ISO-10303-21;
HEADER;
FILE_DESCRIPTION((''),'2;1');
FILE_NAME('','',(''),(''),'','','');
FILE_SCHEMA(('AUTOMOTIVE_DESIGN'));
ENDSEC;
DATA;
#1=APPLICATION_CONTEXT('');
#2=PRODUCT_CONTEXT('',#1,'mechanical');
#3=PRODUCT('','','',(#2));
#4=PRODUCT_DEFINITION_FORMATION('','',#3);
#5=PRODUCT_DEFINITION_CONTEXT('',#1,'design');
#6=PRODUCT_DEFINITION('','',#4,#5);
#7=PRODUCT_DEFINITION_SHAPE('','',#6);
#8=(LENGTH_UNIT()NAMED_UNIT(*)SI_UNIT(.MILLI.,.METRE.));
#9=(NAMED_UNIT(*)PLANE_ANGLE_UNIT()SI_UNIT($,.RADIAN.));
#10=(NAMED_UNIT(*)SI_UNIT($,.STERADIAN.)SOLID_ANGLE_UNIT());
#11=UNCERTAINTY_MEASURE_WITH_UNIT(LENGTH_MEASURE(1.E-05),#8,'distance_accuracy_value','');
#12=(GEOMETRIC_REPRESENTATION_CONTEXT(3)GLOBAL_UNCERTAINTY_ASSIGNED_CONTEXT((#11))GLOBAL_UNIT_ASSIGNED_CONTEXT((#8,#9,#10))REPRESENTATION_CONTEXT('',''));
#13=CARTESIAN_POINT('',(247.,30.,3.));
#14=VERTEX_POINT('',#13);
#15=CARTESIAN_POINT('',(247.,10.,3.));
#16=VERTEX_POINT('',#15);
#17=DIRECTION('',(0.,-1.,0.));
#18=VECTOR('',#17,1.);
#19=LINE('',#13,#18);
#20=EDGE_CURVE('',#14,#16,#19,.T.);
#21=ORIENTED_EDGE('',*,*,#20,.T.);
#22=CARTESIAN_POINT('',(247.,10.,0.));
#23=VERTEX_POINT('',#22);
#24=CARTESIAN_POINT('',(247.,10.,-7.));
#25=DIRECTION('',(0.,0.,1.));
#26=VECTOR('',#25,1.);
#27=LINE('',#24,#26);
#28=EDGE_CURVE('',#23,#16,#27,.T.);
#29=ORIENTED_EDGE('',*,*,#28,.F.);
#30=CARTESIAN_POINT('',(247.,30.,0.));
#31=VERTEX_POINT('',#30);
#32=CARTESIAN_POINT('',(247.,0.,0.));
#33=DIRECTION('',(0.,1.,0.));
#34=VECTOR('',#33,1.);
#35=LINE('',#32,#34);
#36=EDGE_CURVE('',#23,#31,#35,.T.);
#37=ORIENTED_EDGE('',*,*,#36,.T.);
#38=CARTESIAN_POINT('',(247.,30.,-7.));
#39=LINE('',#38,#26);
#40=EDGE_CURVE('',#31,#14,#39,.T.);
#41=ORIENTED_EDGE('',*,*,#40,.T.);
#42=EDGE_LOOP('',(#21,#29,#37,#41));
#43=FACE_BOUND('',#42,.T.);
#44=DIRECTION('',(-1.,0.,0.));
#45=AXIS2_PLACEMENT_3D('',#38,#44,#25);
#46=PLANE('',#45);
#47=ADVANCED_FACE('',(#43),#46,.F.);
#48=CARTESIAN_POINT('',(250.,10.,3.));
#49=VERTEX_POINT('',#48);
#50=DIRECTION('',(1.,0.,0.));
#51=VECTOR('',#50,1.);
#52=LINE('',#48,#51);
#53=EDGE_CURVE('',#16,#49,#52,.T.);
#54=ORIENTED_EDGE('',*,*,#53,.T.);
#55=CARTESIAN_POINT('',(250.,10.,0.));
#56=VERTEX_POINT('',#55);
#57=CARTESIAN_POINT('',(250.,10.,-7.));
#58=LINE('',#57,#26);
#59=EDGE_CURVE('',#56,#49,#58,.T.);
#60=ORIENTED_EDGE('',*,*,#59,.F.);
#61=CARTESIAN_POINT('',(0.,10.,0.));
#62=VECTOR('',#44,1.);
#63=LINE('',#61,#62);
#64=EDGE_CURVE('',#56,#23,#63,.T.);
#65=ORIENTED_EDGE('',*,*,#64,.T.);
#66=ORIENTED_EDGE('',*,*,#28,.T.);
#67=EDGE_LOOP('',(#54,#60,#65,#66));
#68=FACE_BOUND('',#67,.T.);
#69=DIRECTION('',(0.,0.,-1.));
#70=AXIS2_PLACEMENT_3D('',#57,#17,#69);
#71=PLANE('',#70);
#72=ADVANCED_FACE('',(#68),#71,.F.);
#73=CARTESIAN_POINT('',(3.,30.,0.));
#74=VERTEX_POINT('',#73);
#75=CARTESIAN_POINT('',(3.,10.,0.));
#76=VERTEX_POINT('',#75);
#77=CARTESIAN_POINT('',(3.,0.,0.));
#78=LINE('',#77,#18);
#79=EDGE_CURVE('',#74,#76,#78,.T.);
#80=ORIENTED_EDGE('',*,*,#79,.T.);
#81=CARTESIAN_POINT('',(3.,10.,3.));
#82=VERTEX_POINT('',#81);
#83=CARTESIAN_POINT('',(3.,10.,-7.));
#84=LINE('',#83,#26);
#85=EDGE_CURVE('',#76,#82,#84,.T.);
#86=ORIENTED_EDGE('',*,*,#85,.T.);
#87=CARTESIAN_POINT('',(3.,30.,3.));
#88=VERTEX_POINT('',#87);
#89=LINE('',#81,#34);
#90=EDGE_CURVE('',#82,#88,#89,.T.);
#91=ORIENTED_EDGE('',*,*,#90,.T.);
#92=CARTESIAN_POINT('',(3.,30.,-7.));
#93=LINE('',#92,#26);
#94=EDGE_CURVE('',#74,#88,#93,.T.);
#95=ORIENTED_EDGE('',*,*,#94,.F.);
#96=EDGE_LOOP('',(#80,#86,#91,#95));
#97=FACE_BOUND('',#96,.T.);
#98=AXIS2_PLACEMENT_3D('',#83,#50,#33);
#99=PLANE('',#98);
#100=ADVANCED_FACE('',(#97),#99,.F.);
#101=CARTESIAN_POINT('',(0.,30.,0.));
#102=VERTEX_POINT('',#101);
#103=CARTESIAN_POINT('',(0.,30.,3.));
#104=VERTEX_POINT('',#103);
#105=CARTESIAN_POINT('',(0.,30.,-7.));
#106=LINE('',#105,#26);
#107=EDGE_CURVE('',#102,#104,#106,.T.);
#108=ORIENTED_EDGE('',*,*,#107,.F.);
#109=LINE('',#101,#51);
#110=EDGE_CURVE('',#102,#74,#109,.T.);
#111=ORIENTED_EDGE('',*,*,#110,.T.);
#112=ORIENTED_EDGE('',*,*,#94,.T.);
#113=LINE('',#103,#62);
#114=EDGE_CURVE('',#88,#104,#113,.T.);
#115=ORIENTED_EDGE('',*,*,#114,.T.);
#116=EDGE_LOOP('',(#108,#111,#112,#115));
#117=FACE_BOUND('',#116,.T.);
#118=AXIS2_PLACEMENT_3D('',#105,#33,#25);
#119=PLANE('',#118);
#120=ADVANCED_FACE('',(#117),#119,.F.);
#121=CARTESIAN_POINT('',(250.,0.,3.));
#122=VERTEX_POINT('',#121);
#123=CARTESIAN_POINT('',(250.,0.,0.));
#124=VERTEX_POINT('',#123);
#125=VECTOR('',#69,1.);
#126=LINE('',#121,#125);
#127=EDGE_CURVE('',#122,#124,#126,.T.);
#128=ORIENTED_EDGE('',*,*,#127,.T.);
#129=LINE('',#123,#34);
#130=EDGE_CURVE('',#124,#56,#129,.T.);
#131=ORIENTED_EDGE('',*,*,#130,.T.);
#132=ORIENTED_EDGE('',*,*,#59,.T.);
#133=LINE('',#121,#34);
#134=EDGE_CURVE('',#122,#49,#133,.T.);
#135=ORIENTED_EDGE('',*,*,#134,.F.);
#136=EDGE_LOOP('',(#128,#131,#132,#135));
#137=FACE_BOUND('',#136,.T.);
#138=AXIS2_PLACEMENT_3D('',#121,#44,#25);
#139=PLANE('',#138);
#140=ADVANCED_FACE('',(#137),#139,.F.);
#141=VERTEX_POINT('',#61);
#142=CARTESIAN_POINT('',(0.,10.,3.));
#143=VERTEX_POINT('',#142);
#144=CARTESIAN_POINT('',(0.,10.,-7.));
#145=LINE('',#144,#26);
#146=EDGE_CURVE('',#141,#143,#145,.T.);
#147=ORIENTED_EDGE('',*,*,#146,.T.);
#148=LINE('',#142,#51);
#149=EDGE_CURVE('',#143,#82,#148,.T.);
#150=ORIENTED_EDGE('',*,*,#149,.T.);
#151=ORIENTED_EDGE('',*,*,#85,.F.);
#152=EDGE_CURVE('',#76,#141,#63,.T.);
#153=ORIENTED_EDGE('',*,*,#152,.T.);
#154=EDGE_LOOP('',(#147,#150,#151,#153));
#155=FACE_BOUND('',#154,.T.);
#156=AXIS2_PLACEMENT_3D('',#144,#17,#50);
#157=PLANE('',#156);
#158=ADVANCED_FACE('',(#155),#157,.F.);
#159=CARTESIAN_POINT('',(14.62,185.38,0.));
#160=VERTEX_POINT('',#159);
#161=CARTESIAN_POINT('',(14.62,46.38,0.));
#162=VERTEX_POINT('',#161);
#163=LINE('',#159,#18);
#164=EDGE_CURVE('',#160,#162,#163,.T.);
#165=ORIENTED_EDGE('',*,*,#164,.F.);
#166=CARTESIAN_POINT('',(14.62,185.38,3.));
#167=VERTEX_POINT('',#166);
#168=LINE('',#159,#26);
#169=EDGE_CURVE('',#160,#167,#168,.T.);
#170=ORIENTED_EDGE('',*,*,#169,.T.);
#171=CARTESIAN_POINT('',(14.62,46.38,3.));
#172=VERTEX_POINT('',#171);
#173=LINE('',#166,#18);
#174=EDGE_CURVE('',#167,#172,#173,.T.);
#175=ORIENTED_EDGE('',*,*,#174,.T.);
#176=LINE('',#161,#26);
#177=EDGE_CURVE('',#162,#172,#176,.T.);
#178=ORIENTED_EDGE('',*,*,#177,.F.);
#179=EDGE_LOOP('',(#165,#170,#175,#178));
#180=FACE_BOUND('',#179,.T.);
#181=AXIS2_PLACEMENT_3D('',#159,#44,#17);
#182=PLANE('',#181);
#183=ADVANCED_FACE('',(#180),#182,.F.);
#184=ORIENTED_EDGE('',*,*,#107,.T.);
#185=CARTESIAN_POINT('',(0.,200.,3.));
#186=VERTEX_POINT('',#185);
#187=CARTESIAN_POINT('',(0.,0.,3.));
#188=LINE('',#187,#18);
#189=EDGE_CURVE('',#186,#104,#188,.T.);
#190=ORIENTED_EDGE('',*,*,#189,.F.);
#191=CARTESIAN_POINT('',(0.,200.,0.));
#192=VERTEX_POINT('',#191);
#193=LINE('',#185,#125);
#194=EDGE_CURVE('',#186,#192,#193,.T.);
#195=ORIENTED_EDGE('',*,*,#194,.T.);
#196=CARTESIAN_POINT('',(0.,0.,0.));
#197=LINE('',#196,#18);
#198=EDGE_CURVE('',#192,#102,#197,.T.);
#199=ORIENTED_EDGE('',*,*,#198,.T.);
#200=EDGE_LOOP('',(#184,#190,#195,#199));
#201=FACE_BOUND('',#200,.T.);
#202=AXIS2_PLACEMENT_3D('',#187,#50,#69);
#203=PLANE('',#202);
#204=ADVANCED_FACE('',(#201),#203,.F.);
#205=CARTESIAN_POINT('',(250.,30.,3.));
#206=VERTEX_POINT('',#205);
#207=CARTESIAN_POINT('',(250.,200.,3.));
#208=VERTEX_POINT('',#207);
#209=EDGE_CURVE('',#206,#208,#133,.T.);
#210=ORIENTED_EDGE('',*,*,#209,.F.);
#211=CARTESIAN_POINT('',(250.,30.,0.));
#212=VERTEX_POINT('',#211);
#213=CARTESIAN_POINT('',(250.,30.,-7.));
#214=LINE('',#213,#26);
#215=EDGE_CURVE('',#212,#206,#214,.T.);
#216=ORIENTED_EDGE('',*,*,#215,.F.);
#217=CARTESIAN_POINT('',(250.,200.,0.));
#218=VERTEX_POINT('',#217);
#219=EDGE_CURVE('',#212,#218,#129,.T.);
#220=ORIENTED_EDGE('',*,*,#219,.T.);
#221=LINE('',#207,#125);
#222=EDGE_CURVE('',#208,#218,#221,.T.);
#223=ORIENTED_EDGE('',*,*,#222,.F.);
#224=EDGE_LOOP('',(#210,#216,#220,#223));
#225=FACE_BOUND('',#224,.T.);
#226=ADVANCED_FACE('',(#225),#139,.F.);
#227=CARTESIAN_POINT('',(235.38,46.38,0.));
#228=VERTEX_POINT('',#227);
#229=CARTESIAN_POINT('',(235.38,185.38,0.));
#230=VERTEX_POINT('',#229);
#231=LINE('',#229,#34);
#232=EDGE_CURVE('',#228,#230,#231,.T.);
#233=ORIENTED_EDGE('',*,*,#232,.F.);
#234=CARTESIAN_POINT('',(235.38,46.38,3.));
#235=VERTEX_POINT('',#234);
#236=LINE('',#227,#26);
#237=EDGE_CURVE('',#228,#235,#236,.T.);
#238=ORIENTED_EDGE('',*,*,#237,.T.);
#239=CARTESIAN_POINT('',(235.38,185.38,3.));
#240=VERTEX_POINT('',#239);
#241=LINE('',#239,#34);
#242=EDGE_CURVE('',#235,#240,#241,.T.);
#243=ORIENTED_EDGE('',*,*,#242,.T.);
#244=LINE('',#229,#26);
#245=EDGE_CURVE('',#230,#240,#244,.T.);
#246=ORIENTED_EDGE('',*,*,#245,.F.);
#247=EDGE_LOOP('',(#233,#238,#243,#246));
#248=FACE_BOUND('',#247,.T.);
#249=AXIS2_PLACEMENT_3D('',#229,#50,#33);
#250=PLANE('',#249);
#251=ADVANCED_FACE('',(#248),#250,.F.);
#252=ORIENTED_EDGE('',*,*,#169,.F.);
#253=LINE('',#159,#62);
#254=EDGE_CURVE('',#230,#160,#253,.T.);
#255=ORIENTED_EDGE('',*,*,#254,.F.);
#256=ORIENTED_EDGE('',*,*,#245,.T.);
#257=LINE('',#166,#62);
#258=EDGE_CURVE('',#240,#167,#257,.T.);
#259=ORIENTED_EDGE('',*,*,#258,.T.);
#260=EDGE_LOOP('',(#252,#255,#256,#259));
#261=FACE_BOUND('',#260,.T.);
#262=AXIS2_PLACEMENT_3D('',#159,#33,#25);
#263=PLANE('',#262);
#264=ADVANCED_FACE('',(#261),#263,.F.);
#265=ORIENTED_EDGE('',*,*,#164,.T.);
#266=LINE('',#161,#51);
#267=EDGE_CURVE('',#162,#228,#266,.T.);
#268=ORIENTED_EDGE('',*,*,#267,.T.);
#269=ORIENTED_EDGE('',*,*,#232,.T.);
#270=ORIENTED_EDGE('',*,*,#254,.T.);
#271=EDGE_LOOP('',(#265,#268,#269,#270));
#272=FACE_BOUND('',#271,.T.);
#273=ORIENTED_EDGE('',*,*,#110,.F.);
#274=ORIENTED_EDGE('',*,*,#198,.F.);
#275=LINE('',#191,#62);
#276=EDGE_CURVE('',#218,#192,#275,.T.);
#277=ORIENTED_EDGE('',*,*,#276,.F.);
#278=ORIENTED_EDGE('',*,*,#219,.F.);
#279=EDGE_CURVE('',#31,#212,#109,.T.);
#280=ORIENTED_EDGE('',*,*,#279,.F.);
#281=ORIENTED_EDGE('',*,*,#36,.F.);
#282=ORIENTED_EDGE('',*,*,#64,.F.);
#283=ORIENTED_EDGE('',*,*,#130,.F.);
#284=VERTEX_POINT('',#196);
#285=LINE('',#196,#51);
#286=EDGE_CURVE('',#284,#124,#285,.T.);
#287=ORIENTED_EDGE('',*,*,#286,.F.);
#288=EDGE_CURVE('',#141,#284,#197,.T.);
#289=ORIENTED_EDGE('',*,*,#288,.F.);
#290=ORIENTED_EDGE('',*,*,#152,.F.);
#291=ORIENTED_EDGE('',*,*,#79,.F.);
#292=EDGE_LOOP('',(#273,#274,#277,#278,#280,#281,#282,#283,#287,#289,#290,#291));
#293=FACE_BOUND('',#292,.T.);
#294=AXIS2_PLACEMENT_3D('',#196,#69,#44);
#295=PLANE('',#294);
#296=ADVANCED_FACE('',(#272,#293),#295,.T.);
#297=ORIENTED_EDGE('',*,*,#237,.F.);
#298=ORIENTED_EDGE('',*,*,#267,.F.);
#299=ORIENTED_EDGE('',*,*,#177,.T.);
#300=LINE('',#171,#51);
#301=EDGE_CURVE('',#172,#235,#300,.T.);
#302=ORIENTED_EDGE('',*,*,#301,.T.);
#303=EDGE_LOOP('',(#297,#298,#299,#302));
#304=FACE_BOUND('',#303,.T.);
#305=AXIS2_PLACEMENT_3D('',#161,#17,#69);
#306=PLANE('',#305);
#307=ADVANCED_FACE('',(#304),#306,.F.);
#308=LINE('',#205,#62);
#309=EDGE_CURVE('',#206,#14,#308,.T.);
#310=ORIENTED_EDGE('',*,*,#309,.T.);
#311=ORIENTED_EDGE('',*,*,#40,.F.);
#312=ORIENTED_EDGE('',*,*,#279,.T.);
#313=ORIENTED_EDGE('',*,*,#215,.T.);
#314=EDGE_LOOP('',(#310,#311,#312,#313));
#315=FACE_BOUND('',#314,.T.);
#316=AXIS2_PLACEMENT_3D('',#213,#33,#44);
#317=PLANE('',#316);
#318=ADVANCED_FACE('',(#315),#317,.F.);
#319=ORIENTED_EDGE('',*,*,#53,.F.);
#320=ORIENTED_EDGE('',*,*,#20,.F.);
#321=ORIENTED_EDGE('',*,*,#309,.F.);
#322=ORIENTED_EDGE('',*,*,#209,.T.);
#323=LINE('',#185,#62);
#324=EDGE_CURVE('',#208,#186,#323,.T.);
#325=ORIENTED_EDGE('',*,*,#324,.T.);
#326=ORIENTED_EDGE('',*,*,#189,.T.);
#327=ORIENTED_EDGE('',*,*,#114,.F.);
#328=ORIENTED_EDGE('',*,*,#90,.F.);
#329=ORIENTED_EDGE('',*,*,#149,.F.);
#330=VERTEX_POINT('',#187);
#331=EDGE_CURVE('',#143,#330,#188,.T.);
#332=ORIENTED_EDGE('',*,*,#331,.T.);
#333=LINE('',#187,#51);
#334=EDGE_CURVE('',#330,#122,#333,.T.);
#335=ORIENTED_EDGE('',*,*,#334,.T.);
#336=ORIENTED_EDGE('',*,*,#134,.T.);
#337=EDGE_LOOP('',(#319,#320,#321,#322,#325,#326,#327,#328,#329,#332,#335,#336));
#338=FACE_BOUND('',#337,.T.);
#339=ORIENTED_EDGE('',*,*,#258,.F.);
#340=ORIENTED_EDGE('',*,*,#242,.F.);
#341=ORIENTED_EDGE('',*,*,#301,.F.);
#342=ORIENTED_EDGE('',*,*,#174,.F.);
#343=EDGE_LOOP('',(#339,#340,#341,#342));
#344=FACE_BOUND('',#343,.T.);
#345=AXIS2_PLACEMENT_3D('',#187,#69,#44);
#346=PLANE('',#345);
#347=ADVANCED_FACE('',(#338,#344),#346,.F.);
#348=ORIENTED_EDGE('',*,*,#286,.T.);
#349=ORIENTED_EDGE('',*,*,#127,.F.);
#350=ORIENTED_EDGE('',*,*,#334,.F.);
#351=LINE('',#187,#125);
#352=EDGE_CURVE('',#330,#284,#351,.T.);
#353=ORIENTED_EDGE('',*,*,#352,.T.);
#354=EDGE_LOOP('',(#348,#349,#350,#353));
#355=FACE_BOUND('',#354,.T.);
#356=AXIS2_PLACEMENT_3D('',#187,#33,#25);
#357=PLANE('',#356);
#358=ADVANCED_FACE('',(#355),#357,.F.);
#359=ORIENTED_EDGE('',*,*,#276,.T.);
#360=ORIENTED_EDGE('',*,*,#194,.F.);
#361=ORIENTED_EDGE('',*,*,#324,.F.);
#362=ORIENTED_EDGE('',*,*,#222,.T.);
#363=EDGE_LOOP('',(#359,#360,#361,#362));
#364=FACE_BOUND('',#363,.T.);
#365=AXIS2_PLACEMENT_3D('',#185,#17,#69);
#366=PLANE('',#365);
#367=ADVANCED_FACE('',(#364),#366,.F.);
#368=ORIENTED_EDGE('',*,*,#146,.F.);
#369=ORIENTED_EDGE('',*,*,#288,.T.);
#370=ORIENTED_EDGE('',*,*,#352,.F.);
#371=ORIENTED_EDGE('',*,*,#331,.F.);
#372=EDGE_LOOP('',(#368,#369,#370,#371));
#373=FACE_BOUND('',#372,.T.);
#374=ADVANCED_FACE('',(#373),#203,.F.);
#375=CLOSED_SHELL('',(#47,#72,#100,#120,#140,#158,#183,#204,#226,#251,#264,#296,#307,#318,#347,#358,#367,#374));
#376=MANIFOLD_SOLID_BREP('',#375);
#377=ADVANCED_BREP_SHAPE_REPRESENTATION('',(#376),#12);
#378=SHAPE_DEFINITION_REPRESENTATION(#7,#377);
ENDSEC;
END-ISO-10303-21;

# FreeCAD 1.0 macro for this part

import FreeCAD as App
import Part
import Sketcher
Q = App.Units.Quantity

doc = App.newDocument("Part")
body = doc.addObject("PartDesign::Body", "Body")

# Sketch on XY plane
sketch1 = body.newObject("Sketcher::SketchObject", "Sketch")
sketch1.AttachmentSupport = (doc.getObject("XY_Plane"), [""])
sketch1.MapMode = "FlatFace"
sketch1.addGeometry([
    Part.LineSegment(App.Vector(0, 200, 0), App.Vector(0, 0, 0)),
    Part.LineSegment(App.Vector(0, 0, 0), App.Vector(250, 0, 0)),
    Part.LineSegment(App.Vector(250, 0, 0), App.Vector(250, 200, 0)),
    Part.LineSegment(App.Vector(250, 200, 0), App.Vector(0, 200, 0)),
], False)
sketch1.addConstraint([
    Sketcher.Constraint("Coincident", 0, 2, 1, 1),
    Sketcher.Constraint("Coincident", 1, 2, 2, 1),
    Sketcher.Constraint("Coincident", 2, 2, 3, 1),
    Sketcher.Constraint("Coincident", 3, 2, 0, 1),
    Sketcher.Constraint("Vertical", 0),
    Sketcher.Constraint("Horizontal", 1),
    Sketcher.Constraint("Vertical", 2),
    Sketcher.Constraint("Horizontal", 3),
    Sketcher.Constraint("Coincident", 0, 2, -1, 1),
    Sketcher.Constraint("DistanceX", 1, 1, 1, 2, Q("250 mm")),
    Sketcher.Constraint("DistanceY", 0, 2, 0, 1, Q("200 mm")),
])
pad1 = body.newObject("PartDesign::Pad", "Pad")
pad1.Profile = sketch1
pad1.Length = 3

# Sketch on XY plane
sketch2 = body.newObject("Sketcher::SketchObject", "Sketch001")
sketch2.AttachmentSupport = (doc.getObject("XY_Plane"), [""])
sketch2.MapMode = "FlatFace"
sketch2.AttachmentOffset = App.Placement(App.Vector(0, 0, 3), App.Rotation())
sketch2.addGeometry([
    Part.LineSegment(App.Vector(14.62, 185.38, 0), App.Vector(14.62, 46.38, 0)),
    Part.LineSegment(App.Vector(14.62, 46.38, 0), App.Vector(235.38, 46.38, 0)),
    Part.LineSegment(App.Vector(235.38, 46.38, 0), App.Vector(235.38, 185.38, 0)),
    Part.LineSegment(App.Vector(235.38, 185.38, 0), App.Vector(14.62, 185.38, 0)),
], False)
sketch2.addConstraint([
    Sketcher.Constraint("Coincident", 0, 2, 1, 1),
    Sketcher.Constraint("Coincident", 1, 2, 2, 1),
    Sketcher.Constraint("Coincident", 2, 2, 3, 1),
    Sketcher.Constraint("Coincident", 3, 2, 0, 1),
    Sketcher.Constraint("Vertical", 0),
    Sketcher.Constraint("Horizontal", 1),
    Sketcher.Constraint("Vertical", 2),
    Sketcher.Constraint("Horizontal", 3),
    Sketcher.Constraint("DistanceY", 0, 2, 0, 1, Q("139 mm")),
    Sketcher.Constraint("DistanceX", 1, 1, 1, 2, Q("220.76 mm")),
    Sketcher.Constraint("DistanceX", -1, 1, 0, 2, Q("14.62 mm")),
    Sketcher.Constraint("DistanceY", -1, 1, 0, 2, Q("46.38 mm")),
])
pocket1 = body.newObject("PartDesign::Pocket", "Pocket")
pocket1.Profile = sketch2
pocket1.Type = "ThroughAll"

# Sketch on XY plane
sketch3 = body.newObject("Sketcher::SketchObject", "Sketch002")
sketch3.AttachmentSupport = (doc.getObject("XY_Plane"), [""])
sketch3.MapMode = "FlatFace"
sketch3.AttachmentOffset = App.Placement(App.Vector(0, 0, 3), App.Rotation())
sketch3.addGeometry([
    Part.LineSegment(App.Vector(0, 30, 0), App.Vector(0, 10, 0)),  # 0
    Part.LineSegment(App.Vector(0, 10, 0), App.Vector(3, 10, 0)),  # 1
    Part.LineSegment(App.Vector(3, 10, 0), App.Vector(3, 30, 0)),  # 2
    Part.LineSegment(App.Vector(3, 30, 0), App.Vector(0, 30, 0)),  # 3
    Part.LineSegment(App.Vector(247, 30, 0), App.Vector(247, 10, 0)),  # 4
    Part.LineSegment(App.Vector(247, 10, 0), App.Vector(250, 10, 0)),  # 5
    Part.LineSegment(App.Vector(250, 10, 0), App.Vector(250, 30, 0)),  # 6
    Part.LineSegment(App.Vector(250, 30, 0), App.Vector(247, 30, 0)),  # 7
], False)
sketch3.addConstraint([
    Sketcher.Constraint("Coincident", 0, 2, 1, 1),
    Sketcher.Constraint("Coincident", 1, 2, 2, 1),
    Sketcher.Constraint("Coincident", 2, 2, 3, 1),
    Sketcher.Constraint("Coincident", 3, 2, 0, 1),
    Sketcher.Constraint("Coincident", 4, 2, 5, 1),
    Sketcher.Constraint("Coincident", 5, 2, 6, 1),
    Sketcher.Constraint("Coincident", 6, 2, 7, 1),
    Sketcher.Constraint("Coincident", 7, 2, 4, 1),
    Sketcher.Constraint("Vertical", 0),
    Sketcher.Constraint("Horizontal", 1),
    Sketcher.Constraint("Vertical", 2),
    Sketcher.Constraint("Horizontal", 3),
    Sketcher.Constraint("Vertical", 4),
    Sketcher.Constraint("Horizontal", 5),
    Sketcher.Constraint("Vertical", 6),
    Sketcher.Constraint("Horizontal", 7),
    Sketcher.Constraint("PointOnObject", 0, 2, -2),
    Sketcher.Constraint("Horizontal", 1, 2, 4, 2),
    Sketcher.Constraint("Horizontal", 3, 2, 6, 2),
    Sketcher.Constraint("Equal", 3, 5),
    Sketcher.Constraint("DistanceX", 1, 1, 1, 2, Q("3 mm")),
    Sketcher.Constraint("DistanceY", 0, 2, 0, 1, Q("20 mm")),
    Sketcher.Constraint("DistanceY", -1, 1, 0, 2, Q("10 mm")),
    Sketcher.Constraint("DistanceX", -1, 1, 4, 2, Q("247 mm")),
])
pocket2 = body.newObject("PartDesign::Pocket", "Pocket001")
pocket2.Profile = sketch3
pocket2.Length = 10

doc.recompute()
